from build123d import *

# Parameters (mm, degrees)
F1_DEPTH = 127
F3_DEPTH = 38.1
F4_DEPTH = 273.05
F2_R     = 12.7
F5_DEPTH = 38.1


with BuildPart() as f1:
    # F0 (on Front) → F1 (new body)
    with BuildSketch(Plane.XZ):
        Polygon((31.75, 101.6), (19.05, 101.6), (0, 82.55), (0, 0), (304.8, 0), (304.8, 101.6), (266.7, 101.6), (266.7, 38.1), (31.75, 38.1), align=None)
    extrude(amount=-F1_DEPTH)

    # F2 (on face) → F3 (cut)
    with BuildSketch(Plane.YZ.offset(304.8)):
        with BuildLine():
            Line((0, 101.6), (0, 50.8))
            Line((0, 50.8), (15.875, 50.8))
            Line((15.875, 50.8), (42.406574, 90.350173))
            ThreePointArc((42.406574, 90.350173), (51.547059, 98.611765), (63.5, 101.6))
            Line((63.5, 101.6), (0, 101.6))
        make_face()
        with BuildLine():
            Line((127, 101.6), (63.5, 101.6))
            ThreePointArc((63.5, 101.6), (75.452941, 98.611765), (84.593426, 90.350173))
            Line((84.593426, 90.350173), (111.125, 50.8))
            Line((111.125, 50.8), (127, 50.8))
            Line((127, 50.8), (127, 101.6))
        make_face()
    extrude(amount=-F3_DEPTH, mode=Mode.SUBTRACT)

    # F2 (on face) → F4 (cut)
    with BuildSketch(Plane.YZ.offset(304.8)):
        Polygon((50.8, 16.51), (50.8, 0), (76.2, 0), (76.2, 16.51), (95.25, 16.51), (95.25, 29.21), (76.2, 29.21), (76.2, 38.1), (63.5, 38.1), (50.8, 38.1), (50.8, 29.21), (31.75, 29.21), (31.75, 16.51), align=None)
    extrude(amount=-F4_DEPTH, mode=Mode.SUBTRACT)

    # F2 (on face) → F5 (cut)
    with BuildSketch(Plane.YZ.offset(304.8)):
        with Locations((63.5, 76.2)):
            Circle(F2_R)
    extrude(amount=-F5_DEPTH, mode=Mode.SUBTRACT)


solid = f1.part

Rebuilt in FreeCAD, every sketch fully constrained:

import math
import FreeCAD as App
import Part
import Sketcher
from FreeCAD import Vector
Q = App.Units.Quantity


def add_polygon(sketch, points):
    """Adds a closed chain of lines whose ends are joined by coincident constraints."""
    first, n = sketch.GeometryCount, len(points)
    for a, b in zip(points, points[1:] + points[:1]):
        sketch.addGeometry(Part.LineSegment(App.Vector(*a, 0), App.Vector(*b, 0)), False)
    for i in range(n):
        sketch.addConstraint(Sketcher.Constraint("Coincident", first + i, 2, first + (i + 1) % n, 1))

doc = App.newDocument("Part")
body = doc.addObject("PartDesign::Body", "Body")

# Sketch on XZ plane
sketch1 = body.newObject("Sketcher::SketchObject", "Sketch")
sketch1.AttachmentSupport = (doc.getObject("XZ_Plane"), [""])
sketch1.MapMode = "FlatFace"
add_polygon(sketch1, [(32, 102), (19, 102), (0, 83), (0, 0), (305, 0), (305, 102), (267, 102), (267, 38), (32, 38)])  # lines 0-8
sketch1.addConstraint([
    Sketcher.Constraint("Horizontal", 0),
    Sketcher.Constraint("Vertical", 2),
    Sketcher.Constraint("Horizontal", 3),
    Sketcher.Constraint("Vertical", 4),
    Sketcher.Constraint("Horizontal", 5),
    Sketcher.Constraint("Vertical", 6),
    Sketcher.Constraint("Horizontal", 7),
    Sketcher.Constraint("Vertical", 8),
    Sketcher.Constraint("Coincident", 2, 2, -1, 1),
    Sketcher.Constraint("Horizontal", 0, 2, 4, 2),
    Sketcher.Constraint("DistanceX", 3, 1, 3, 2, Q("12 in")),
    Sketcher.Constraint("DistanceY", 4, 1, 4, 2, Q("4 in")),
    Sketcher.Constraint("DistanceX", 0, 2, 0, 1, Q("0.5 in")),
    Sketcher.Constraint("DistanceX", 5, 2, 5, 1, Q("1.5 in")),
    Sketcher.Constraint("DistanceY", 6, 2, 6, 1, Q("2.5 in")),
    Sketcher.Constraint("Angle", 1, Q("-135 deg")),
    Sketcher.Constraint("DistanceX", 7, 2, 7, 1, Q("9.25 in")),
])
pad1 = body.newObject("PartDesign::Pad", "Pad")
pad1.Profile = sketch1
pad1.Length = Q("5 in")
pad1.Reversed = True

# Sketch on YZ plane
sketch2 = body.newObject("Sketcher::SketchObject", "Sketch001")
sketch2.AttachmentSupport = (doc.getObject("YZ_Plane"), [""])
sketch2.MapMode = "FlatFace"
sketch2.AttachmentOffset = App.Placement(Vector(0, 0, 12 * 25.4), App.Rotation())
sketch2.addGeometry([
    Part.LineSegment(Vector(0, 102, 0), Vector(0, 51, 0)),  # 0
    Part.LineSegment(Vector(0, 51, 0), Vector(16, 51, 0)),  # 1
    Part.LineSegment(Vector(16, 51, 0), Vector(42, 90, 0)),  # 2
    Part.ArcOfCircle(Part.Circle(Vector(63, 76, 0), Vector(0, 0, 1), 25), math.radians(90), math.radians(146)),  # 3
    Part.LineSegment(Vector(64, 102, 0), Vector(0, 102, 0)),  # 4
    Part.LineSegment(Vector(127, 102, 0), Vector(64, 102, 0)),  # 5
    Part.ArcOfCircle(Part.Circle(Vector(64, 76, 0), Vector(0, 0, 1), 25), math.radians(34), math.radians(90)),  # 6
    Part.LineSegment(Vector(85, 90, 0), Vector(111, 51, 0)),  # 7
    Part.LineSegment(Vector(111, 51, 0), Vector(127, 51, 0)),  # 8
    Part.LineSegment(Vector(127, 51, 0), Vector(127, 102, 0)),  # 9
], False)
sketch2.addConstraint([
    Sketcher.Constraint("Coincident", 0, 2, 1, 1),
    Sketcher.Constraint("Coincident", 1, 2, 2, 1),
    Sketcher.Constraint("Tangent", 2, 2, 3, 2),
    Sketcher.Constraint("Tangent", 3, 1, 4, 1),
    Sketcher.Constraint("Coincident", 4, 2, 0, 1),
    Sketcher.Constraint("Tangent", 5, 2, 6, 2),
    Sketcher.Constraint("Tangent", 6, 1, 7, 1),
    Sketcher.Constraint("Coincident", 7, 2, 8, 1),
    Sketcher.Constraint("Coincident", 8, 2, 9, 1),
    Sketcher.Constraint("Coincident", 9, 2, 5, 1),
    Sketcher.Constraint("Vertical", 0),
    Sketcher.Constraint("Horizontal", 1),
    Sketcher.Constraint("Horizontal", 4),
    Sketcher.Constraint("Horizontal", 5),
    Sketcher.Constraint("Horizontal", 8),
    Sketcher.Constraint("Vertical", 9),
    Sketcher.Constraint("Coincident", 6, 3, 3, 3),
    Sketcher.Constraint("Equal", 3, 6),
    Sketcher.Constraint("PointOnObject", 0, 2, -2),
    Sketcher.Constraint("Horizontal", 2, 2, 6, 1),
    Sketcher.Constraint("Horizontal", 1, 2, 7, 2),
    Sketcher.Constraint("Equal", 4, 5),
    Sketcher.Constraint("Radius", 3, Q("1 in")),
    Sketcher.Constraint("DistanceY", 0, 2, 0, 1, Q("2 in")),
    Sketcher.Constraint("DistanceX", 4, 2, 4, 1, Q("2.5 in")),
    Sketcher.Constraint("DistanceY", -1, 1, 3, 3, Q("3 in")),
    Sketcher.Constraint("DistanceX", 1, 1, 1, 2, Q("0.625 in")),
])
pocket1 = body.newObject("PartDesign::Pocket", "Pocket")
pocket1.Profile = sketch2
pocket1.Length = Q("1.5 in")

# Sketch on YZ plane
sketch3 = body.newObject("Sketcher::SketchObject", "Sketch002")
sketch3.AttachmentSupport = (doc.getObject("YZ_Plane"), [""])
sketch3.MapMode = "FlatFace"
sketch3.AttachmentOffset = App.Placement(Vector(0, 0, 12 * 25.4), App.Rotation())
add_polygon(sketch3, [(51, 17), (51, 0), (76, 0), (76, 17), (95, 17), (95, 29), (76, 29), (76, 38), (51, 38), (51, 29), (32, 29), (32, 17)])  # lines 0-11
sketch3.addConstraint([
    Sketcher.Constraint("Vertical", 0),
    Sketcher.Constraint("Horizontal", 1),
    Sketcher.Constraint("Vertical", 2),
    Sketcher.Constraint("Horizontal", 3),
    Sketcher.Constraint("Vertical", 4),
    Sketcher.Constraint("Horizontal", 5),
    Sketcher.Constraint("Vertical", 6),
    Sketcher.Constraint("Horizontal", 7),
    Sketcher.Constraint("Vertical", 8),
    Sketcher.Constraint("Horizontal", 9),
    Sketcher.Constraint("Vertical", 10),
    Sketcher.Constraint("Horizontal", 11),
    Sketcher.Constraint("PointOnObject", 0, 2, -1),
    Sketcher.Constraint("Horizontal", 5, 2, 8, 2),
    Sketcher.Constraint("Horizontal", 3, 2, 10, 2),
    Sketcher.Constraint("Vertical", 2, 2, 5, 2),
    Sketcher.Constraint("Vertical", 0, 2, 7, 2),
    Sketcher.Constraint("Equal", 5, 9),
    Sketcher.Constraint("DistanceX", 1, 1, 1, 2, Q("1 in")),
    Sketcher.Constraint("DistanceY", 4, 1, 4, 2, Q("0.5 in")),
    Sketcher.Constraint("DistanceX", -1, 1, 0, 2, Q("2 in")),
    Sketcher.Constraint("DistanceX", 3, 1, 3, 2, Q("0.75 in")),
    Sketcher.Constraint("DistanceY", 0, 2, 0, 1, Q("0.65 in")),
    Sketcher.Constraint("DistanceY", 6, 1, 6, 2, Q("0.35 in")),
])
pocket2 = body.newObject("PartDesign::Pocket", "Pocket001")
pocket2.Profile = sketch3
pocket2.Length = Q("10.75 in")

# Sketch on YZ plane
sketch4 = body.newObject("Sketcher::SketchObject", "Sketch003")
sketch4.AttachmentSupport = (doc.getObject("YZ_Plane"), [""])
sketch4.MapMode = "FlatFace"
sketch4.AttachmentOffset = App.Placement(Vector(0, 0, 12 * 25.4), App.Rotation())
sketch4.addGeometry(Part.Circle(Vector(64, 76, 0), Vector(0, 0, 1), 13), False)
sketch4.addConstraint([
    Sketcher.Constraint("Diameter", 0, Q("1 in")),
    Sketcher.Constraint("DistanceY", -1, 1, 0, 3, Q("3 in")),
    Sketcher.Constraint("DistanceX", -1, 1, 0, 3, Q("2.5 in")),
])
pocket3 = body.newObject("PartDesign::Pocket", "Pocket002")
pocket3.Profile = sketch4
pocket3.Length = Q("1.5 in")

doc.recompute()
